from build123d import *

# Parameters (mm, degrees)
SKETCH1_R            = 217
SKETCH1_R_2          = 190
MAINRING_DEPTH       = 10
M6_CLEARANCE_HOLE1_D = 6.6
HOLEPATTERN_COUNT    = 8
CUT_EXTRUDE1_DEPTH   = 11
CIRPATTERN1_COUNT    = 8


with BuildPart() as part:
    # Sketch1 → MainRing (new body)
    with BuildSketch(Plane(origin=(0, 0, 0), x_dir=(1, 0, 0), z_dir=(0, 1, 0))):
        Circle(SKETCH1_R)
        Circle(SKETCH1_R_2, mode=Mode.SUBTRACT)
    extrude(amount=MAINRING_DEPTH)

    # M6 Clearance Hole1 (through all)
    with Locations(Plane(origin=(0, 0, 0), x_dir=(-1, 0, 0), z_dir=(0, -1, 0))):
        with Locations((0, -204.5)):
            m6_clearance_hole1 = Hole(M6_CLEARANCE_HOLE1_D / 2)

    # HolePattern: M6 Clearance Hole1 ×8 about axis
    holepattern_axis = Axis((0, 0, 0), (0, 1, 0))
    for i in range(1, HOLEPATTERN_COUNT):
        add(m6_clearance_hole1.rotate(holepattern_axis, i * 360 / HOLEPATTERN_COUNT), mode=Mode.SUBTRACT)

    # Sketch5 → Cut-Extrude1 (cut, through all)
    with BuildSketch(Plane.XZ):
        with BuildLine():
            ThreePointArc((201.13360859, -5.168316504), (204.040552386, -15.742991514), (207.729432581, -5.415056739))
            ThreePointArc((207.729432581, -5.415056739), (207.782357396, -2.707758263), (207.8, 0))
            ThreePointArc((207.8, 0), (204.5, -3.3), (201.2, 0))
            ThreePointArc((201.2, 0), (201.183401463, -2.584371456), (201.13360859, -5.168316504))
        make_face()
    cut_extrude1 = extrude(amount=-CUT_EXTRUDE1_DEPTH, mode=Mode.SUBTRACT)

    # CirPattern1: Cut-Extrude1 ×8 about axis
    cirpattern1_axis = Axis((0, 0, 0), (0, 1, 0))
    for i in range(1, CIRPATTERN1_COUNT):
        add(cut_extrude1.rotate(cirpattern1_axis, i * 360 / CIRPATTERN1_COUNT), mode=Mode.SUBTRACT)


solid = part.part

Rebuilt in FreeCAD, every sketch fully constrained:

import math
import FreeCAD as App
import Part
import Sketcher

doc = App.newDocument("Part")
body = doc.addObject("PartDesign::Body", "Body")

# Sketch on XZ plane
sketch1 = body.newObject("Sketcher::SketchObject", "Sketch")
sketch1.AttachmentSupport = (doc.getObject("XZ_Plane"), [""])
sketch1.MapMode = "FlatFace"
sketch1.addGeometry([
    Part.Circle(App.Vector(0, 0, 0), App.Vector(0, 0, 1), 217),
    Part.Circle(App.Vector(0, 0, 0), App.Vector(0, 0, 1), 190),
], False)
sketch1.addConstraint([
    Sketcher.Constraint("Coincident", 0, 3, -1, 1),
    Sketcher.Constraint("Coincident", 1, 3, -1, 1),
    Sketcher.Constraint("Diameter", 0, 434.0),
    Sketcher.Constraint("Diameter", 1, 380.0),
])
pad1 = body.newObject("PartDesign::Pad", "Pad")
pad1.Profile = sketch1
pad1.Length = 10
pad1.Reversed = True

# Sketch on XZ plane
sketch2 = body.newObject("Sketcher::SketchObject", "Sketch001")
sketch2.AttachmentSupport = (doc.getObject("XZ_Plane"), [""])
sketch2.MapMode = "FlatFace"
sketch2.addGeometry(Part.Circle(App.Vector(0, 204.5, 0), App.Vector(0, 0, 1), 3.3), False)
sketch2.addConstraint([
    Sketcher.Constraint("PointOnObject", 0, 3, -2),
    Sketcher.Constraint("Diameter", 0, 6.6),
    Sketcher.Constraint("DistanceY", -1, 1, 0, 3, 204.5),
])
doc.recompute()
hole = body.newObject("PartDesign::Hole", "Hole")
hole.Profile = sketch2
hole.ThreadType = "None"
hole.Diameter = 6.6
hole.DepthType = "ThroughAll"
doc.recompute()

polarpattern = body.newObject("PartDesign::PolarPattern", "PolarPattern")
polarpattern.Originals = [hole]
polarpattern.Axis = (doc.getObject("Y_Axis"), [""])
polarpattern.Angle = 360
polarpattern.Occurrences = 8
body.Tip = polarpattern

# Sketch on XZ plane
sketch3 = body.newObject("Sketcher::SketchObject", "Sketch002")
sketch3.AttachmentSupport = (doc.getObject("XZ_Plane"), [""])
sketch3.MapMode = "FlatFace"
sketch3.addGeometry([
    Part.ArcOfCircle(Part.Circle(App.Vector(204.255501, -9.997011, 0), App.Vector(0, 0, 1), 5.75), math.radians(122.883856), math.radians(412.831438)),
    Part.ArcOfCircle(Part.Circle(App.Vector(-0.000003, 0, 0), App.Vector(0, 0, 1), 207.800003), math.radians(-1.493239), math.radians(0)),
    Part.ArcOfCircle(Part.Circle(App.Vector(204.5, 0, 0), App.Vector(0, 0, 1), 3.3), math.radians(180), math.radians(360)),
    Part.ArcOfCircle(Part.Circle(App.Vector(0.000003, 0, 0), App.Vector(0, 0, 1), 201.199997), math.radians(-1.471945), math.radians(0)),
], False)
sketch3.addConstraint([
    Sketcher.Constraint("Coincident", 0, 2, 1, 1),
    Sketcher.Constraint("Tangent", 1, 2, 2, 2),
    Sketcher.Constraint("Tangent", 2, 1, 3, 2),
    Sketcher.Constraint("Coincident", 3, 1, 0, 1),
    Sketcher.Constraint("Coincident", 1, 3, -1, 1),
    Sketcher.Constraint("Coincident", 3, 3, -1, 1),
    Sketcher.Constraint("PointOnObject", 2, 3, -1),
    Sketcher.Constraint("Radius", 2, 3.3),
    Sketcher.Constraint("Radius", 0, 5.75),
    Sketcher.Constraint("DistanceX", -1, 1, 2, 3, 204.5),
    Sketcher.Constraint("DistanceX", -1, 1, 0, 3, 204.255501),
    Sketcher.Constraint("DistanceY", 0, 3, -1, 1, 9.997011),
])
pocket1 = body.newObject("PartDesign::Pocket", "Pocket")
pocket1.Profile = sketch3
pocket1.Type = "ThroughAll"
doc.recompute()

polarpattern2 = body.newObject("PartDesign::PolarPattern", "PolarPattern001")
polarpattern2.Originals = [pocket1]
polarpattern2.Axis = (doc.getObject("Y_Axis"), [""])
polarpattern2.Angle = 360
polarpattern2.Occurrences = 8
body.Tip = polarpattern2

doc.recompute()
